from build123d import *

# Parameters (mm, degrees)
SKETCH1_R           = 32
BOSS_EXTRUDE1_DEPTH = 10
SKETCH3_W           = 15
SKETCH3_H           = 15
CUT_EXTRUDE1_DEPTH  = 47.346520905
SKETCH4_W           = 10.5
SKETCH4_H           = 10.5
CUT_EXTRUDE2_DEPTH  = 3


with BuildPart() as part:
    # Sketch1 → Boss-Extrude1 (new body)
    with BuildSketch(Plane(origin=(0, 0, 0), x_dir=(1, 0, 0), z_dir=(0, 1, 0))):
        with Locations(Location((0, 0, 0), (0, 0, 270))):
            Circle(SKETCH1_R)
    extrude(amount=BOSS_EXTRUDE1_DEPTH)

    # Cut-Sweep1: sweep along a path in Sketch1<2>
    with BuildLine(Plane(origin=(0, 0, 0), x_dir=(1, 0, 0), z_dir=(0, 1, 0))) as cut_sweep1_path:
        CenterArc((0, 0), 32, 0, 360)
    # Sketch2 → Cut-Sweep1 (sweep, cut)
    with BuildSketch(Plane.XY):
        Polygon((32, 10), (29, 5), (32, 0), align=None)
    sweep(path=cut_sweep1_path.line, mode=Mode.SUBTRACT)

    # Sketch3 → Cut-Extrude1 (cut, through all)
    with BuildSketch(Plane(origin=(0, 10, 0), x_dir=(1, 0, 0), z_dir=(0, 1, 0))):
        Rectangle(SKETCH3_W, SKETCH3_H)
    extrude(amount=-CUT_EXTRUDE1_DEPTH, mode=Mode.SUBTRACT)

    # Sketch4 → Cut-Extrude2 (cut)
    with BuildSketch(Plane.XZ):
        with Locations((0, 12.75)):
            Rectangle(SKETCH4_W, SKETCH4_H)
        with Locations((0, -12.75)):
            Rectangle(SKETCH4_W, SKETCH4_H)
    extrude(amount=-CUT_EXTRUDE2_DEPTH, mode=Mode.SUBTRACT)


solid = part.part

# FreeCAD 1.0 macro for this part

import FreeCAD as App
import Part
import Sketcher
from FreeCAD import Vector
Q = App.Units.Quantity


def add_polygon(sketch, points):
    """Adds a closed chain of lines whose ends are joined by coincident constraints."""
    first, n = sketch.GeometryCount, len(points)
    for a, b in zip(points, points[1:] + points[:1]):
        sketch.addGeometry(Part.LineSegment(App.Vector(*a, 0), App.Vector(*b, 0)), False)
    for i in range(n):
        sketch.addConstraint(Sketcher.Constraint("Coincident", first + i, 2, first + (i + 1) % n, 1))

doc = App.newDocument("Part")
body = doc.addObject("PartDesign::Body", "Body")

sketch1 = body.newObject("Sketcher::SketchObject", "Sketch")
sketch1.AttachmentSupport = (doc.getObject("XZ_Plane"), [""])
sketch1.MapMode = "FlatFace"
sketch1.addGeometry(Part.Circle(Vector(0, 0, 0), Vector(0, 0, 1), 32), False)
sketch1.addConstraint(Sketcher.Constraint("Coincident", 0, 3, -1, 1))
sketch1.addConstraint(Sketcher.Constraint("Diameter", 0, Q("64 mm")))
pad1 = body.newObject("PartDesign::Pad", "Pad")
pad1.Profile = sketch1
pad1.Length = 10
pad1.Reversed = True

sketch2 = body.newObject("Sketcher::SketchObject", "Sketch001")
sketch2.AttachmentSupport = (doc.getObject("XY_Plane"), [""])
sketch2.MapMode = "FlatFace"
add_polygon(sketch2, [(32, 10), (29, 5), (32, 0)])
sketch2.addConstraint(Sketcher.Constraint("Vertical", 2))
sketch2.addConstraint(Sketcher.Constraint("PointOnObject", 1, 2, -1))
sketch2.addConstraint(Sketcher.Constraint("Equal", 0, 1))
sketch2.addConstraint(Sketcher.Constraint("DistanceY", 2, 1, 2, 2, Q("10 mm")))
sketch2.addConstraint(Sketcher.Constraint("DistanceX", -1, 1, 0, 2, Q("29 mm")))
sketch2.addConstraint(Sketcher.Constraint("DistanceX", -1, 1, 1, 2, Q("32 mm")))

sketch3 = body.newObject("Sketcher::SketchObject", "Sketch002")
sketch3.AttachmentSupport = (doc.getObject("XZ_Plane"), [""])
sketch3.MapMode = "FlatFace"
sketch3.addGeometry(Part.Circle(Vector(0, 0, 0), Vector(0, 0, 1), 32), False)
sketch3.addConstraint(Sketcher.Constraint("Coincident", 0, 3, -1, 1))
sketch3.addConstraint(Sketcher.Constraint("Diameter", 0, Q("64 mm")))
doc.recompute()

subtractivepipe = body.newObject("PartDesign::SubtractivePipe", "SubtractivePipe")
subtractivepipe.Profile = sketch2
subtractivepipe.Spine = (sketch3, ["Edge1"])

sketch4 = body.newObject("Sketcher::SketchObject", "Sketch003")
sketch4.AttachmentSupport = (doc.getObject("XZ_Plane"), [""])
sketch4.MapMode = "FlatFace"
sketch4.AttachmentOffset = App.Placement(Vector(0, 0, -10), App.Rotation())
add_polygon(sketch4, [(-7.5, -7.5), (-7.5, 7.5), (7.5, 7.5), (7.5, -7.5)])
sketch4.addConstraint(Sketcher.Constraint("Vertical", 0))
sketch4.addConstraint(Sketcher.Constraint("Horizontal", 1))
sketch4.addConstraint(Sketcher.Constraint("Vertical", 2))
sketch4.addConstraint(Sketcher.Constraint("Horizontal", 3))
sketch4.addConstraint(Sketcher.Constraint("Symmetric", 0, 2, 2, 2, -1, 1))
sketch4.addConstraint(Sketcher.Constraint("Equal", 3, 0))
sketch4.addConstraint(Sketcher.Constraint("DistanceX", 1, 1, 1, 2, Q("15 mm")))
pocket1 = body.newObject("PartDesign::Pocket", "Pocket")
pocket1.Profile = sketch4
pocket1.Type = "ThroughAll"
pocket1.Reversed = True

sketch5 = body.newObject("Sketcher::SketchObject", "Sketch004")
sketch5.AttachmentSupport = (doc.getObject("XZ_Plane"), [""])
sketch5.MapMode = "FlatFace"
add_polygon(sketch5, [(-5.25, 18), (-5.25, 7.5), (5.25, 7.5), (5.25, 18)])
add_polygon(sketch5, [(-5.25, -7.5), (-5.25, -18), (5.25, -18), (5.25, -7.5)])
sketch5.addConstraint(Sketcher.Constraint("Vertical", 0))
sketch5.addConstraint(Sketcher.Constraint("Horizontal", 1))
sketch5.addConstraint(Sketcher.Constraint("Vertical", 2))
sketch5.addConstraint(Sketcher.Constraint("Horizontal", 3))
sketch5.addConstraint(Sketcher.Constraint("Vertical", 4))
sketch5.addConstraint(Sketcher.Constraint("Horizontal", 5))
sketch5.addConstraint(Sketcher.Constraint("Vertical", 6))
sketch5.addConstraint(Sketcher.Constraint("Horizontal", 7))
sketch5.addConstraint(Sketcher.Constraint("Symmetric", 2, 2, 4, 2, -1, 1))
sketch5.addConstraint(Sketcher.Constraint("Symmetric", 0, 2, 6, 2, -1, 1))
sketch5.addConstraint(Sketcher.Constraint("Vertical", 3, 2, 4, 2))
sketch5.addConstraint(Sketcher.Constraint("Equal", 7, 0))
sketch5.addConstraint(Sketcher.Constraint("DistanceX", 1, 1, 1, 2, Q("10.5 mm")))
sketch5.addConstraint(Sketcher.Constraint("DistanceY", -1, 1, 2, 2, Q("18 mm")))
pocket2 = body.newObject("PartDesign::Pocket", "Pocket001")
pocket2.Profile = sketch5
pocket2.Length = 3

doc.recompute()
